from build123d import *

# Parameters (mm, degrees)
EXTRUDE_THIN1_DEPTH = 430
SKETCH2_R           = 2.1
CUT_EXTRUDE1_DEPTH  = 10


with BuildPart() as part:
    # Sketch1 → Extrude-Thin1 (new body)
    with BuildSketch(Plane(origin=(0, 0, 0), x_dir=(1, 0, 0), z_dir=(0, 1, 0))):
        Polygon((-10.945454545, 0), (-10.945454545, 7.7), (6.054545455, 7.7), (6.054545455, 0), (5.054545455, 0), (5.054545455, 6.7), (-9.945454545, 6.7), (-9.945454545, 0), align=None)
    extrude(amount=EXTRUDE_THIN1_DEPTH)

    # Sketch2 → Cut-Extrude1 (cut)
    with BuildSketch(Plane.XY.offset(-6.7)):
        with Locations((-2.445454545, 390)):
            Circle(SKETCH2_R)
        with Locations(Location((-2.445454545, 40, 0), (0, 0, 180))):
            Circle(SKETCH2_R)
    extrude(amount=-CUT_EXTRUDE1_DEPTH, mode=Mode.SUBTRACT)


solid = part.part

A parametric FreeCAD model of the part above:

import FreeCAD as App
import Part
import Sketcher
Q = App.Units.Quantity


def add_polygon(sketch, points):
    """Adds a closed chain of lines whose ends are joined by coincident constraints."""
    first, n = sketch.GeometryCount, len(points)
    for a, b in zip(points, points[1:] + points[:1]):
        sketch.addGeometry(Part.LineSegment(App.Vector(*a, 0), App.Vector(*b, 0)), False)
    for i in range(n):
        sketch.addConstraint(Sketcher.Constraint("Coincident", first + i, 2, first + (i + 1) % n, 1))

doc = App.newDocument("Part")
params = doc.addObject("Spreadsheet::Sheet", "Params")
for row, (alias, value) in enumerate([
    ("sketch1_width", "1 mm"),
    ("sketch1_width2", "15 mm"),
    ("sketch1_height", "7.7 mm"),
    ("sketch1_height2", "6.7 mm"),
    ("pad1_length", "430 mm"),
    ("sketch2_diameter", "4.2 mm"),
    ("pocket1_length", "10 mm"),
], start=1):
    params.set(f"A{row}", alias)
    params.set(f"B{row}", "=" + value)
    params.setAlias(f"B{row}", alias)

body = doc.addObject("PartDesign::Body", "Body")

# Sketch on XZ plane
sketch1 = body.newObject("Sketcher::SketchObject", "Sketch")
sketch1.AttachmentSupport = (doc.getObject("XZ_Plane"), [""])
sketch1.MapMode = "FlatFace"
add_polygon(sketch1, [(-10.9, -7.7), (-10.9, 0), (-9.9, 0), (-9.9, -6.7), (5.1, -6.7), (5.1, 0), (6.1, 0), (6.1, -7.7)])  # lines 0-7
sketch1.addConstraint(Sketcher.Constraint("Vertical", 0))
sketch1.addConstraint(Sketcher.Constraint("Horizontal", 1))
sketch1.addConstraint(Sketcher.Constraint("Vertical", 2))
sketch1.addConstraint(Sketcher.Constraint("Horizontal", 3))
sketch1.addConstraint(Sketcher.Constraint("Vertical", 4))
sketch1.addConstraint(Sketcher.Constraint("Horizontal", 5))
sketch1.addConstraint(Sketcher.Constraint("Vertical", 6))
sketch1.addConstraint(Sketcher.Constraint("Horizontal", 7))
sketch1.addConstraint(Sketcher.Constraint("PointOnObject", 0, 2, -1))
sketch1.addConstraint(Sketcher.Constraint("PointOnObject", 4, 2, -1))
sketch1.addConstraint(Sketcher.Constraint("Equal", 1, 5))
sketch1.addConstraint(Sketcher.Constraint("DistanceX", 1, 1, 1, 2, Q("1 mm")))
sketch1.addConstraint(Sketcher.Constraint("DistanceX", 3, 1, 3, 2, Q("15 mm")))
sketch1.addConstraint(Sketcher.Constraint("DistanceY", 0, 1, 0, 2, Q("7.7 mm")))
sketch1.addConstraint(Sketcher.Constraint("DistanceY", 2, 2, 2, 1, Q("6.7 mm")))
sketch1.addConstraint(Sketcher.Constraint("DistanceX", 0, 2, -1, 1, Q("10.945455 mm")))
sketch1.setExpression("Constraints[19]", "Params.sketch1_width")
sketch1.setExpression("Constraints[20]", "Params.sketch1_width2")
sketch1.setExpression("Constraints[21]", "Params.sketch1_height")
sketch1.setExpression("Constraints[22]", "Params.sketch1_height2")
pad1 = body.newObject("PartDesign::Pad", "Pad")
pad1.Profile = sketch1
pad1.setExpression("Length", "Params.pad1_length")
pad1.Reversed = True

# Sketch on XY plane
sketch2 = body.newObject("Sketcher::SketchObject", "Sketch001")
sketch2.AttachmentSupport = (doc.getObject("XY_Plane"), [""])
sketch2.MapMode = "FlatFace"
sketch2.AttachmentOffset = App.Placement(App.Vector(0, 0, -6.7), App.Rotation())
sketch2.addGeometry(Part.Circle(App.Vector(-2.4, 390, 0), App.Vector(0, 0, 1), 2.1), False)
sketch2.addGeometry(Part.Circle(App.Vector(-2.4, 40, 0), App.Vector(0, 0, 1), 2.1), False)
sketch2.addConstraint(Sketcher.Constraint("Equal", 0, 1))
sketch2.addConstraint(Sketcher.Constraint("Vertical", 0, 3, 1, 3))
sketch2.addConstraint(Sketcher.Constraint("Diameter", 0, Q("4.2 mm")))
sketch2.addConstraint(Sketcher.Constraint("DistanceY", -1, 1, 0, 3, Q("390 mm")))
sketch2.addConstraint(Sketcher.Constraint("DistanceY", -1, 1, 1, 3, Q("40 mm")))
sketch2.addConstraint(Sketcher.Constraint("DistanceX", 0, 3, -1, 1, Q("2.445455 mm")))
sketch2.setExpression("Constraints[2]", "Params.sketch2_diameter")
pocket1 = body.newObject("PartDesign::Pocket", "Pocket")
pocket1.Profile = sketch2
pocket1.setExpression("Length", "Params.pocket1_length")

doc.recompute()
